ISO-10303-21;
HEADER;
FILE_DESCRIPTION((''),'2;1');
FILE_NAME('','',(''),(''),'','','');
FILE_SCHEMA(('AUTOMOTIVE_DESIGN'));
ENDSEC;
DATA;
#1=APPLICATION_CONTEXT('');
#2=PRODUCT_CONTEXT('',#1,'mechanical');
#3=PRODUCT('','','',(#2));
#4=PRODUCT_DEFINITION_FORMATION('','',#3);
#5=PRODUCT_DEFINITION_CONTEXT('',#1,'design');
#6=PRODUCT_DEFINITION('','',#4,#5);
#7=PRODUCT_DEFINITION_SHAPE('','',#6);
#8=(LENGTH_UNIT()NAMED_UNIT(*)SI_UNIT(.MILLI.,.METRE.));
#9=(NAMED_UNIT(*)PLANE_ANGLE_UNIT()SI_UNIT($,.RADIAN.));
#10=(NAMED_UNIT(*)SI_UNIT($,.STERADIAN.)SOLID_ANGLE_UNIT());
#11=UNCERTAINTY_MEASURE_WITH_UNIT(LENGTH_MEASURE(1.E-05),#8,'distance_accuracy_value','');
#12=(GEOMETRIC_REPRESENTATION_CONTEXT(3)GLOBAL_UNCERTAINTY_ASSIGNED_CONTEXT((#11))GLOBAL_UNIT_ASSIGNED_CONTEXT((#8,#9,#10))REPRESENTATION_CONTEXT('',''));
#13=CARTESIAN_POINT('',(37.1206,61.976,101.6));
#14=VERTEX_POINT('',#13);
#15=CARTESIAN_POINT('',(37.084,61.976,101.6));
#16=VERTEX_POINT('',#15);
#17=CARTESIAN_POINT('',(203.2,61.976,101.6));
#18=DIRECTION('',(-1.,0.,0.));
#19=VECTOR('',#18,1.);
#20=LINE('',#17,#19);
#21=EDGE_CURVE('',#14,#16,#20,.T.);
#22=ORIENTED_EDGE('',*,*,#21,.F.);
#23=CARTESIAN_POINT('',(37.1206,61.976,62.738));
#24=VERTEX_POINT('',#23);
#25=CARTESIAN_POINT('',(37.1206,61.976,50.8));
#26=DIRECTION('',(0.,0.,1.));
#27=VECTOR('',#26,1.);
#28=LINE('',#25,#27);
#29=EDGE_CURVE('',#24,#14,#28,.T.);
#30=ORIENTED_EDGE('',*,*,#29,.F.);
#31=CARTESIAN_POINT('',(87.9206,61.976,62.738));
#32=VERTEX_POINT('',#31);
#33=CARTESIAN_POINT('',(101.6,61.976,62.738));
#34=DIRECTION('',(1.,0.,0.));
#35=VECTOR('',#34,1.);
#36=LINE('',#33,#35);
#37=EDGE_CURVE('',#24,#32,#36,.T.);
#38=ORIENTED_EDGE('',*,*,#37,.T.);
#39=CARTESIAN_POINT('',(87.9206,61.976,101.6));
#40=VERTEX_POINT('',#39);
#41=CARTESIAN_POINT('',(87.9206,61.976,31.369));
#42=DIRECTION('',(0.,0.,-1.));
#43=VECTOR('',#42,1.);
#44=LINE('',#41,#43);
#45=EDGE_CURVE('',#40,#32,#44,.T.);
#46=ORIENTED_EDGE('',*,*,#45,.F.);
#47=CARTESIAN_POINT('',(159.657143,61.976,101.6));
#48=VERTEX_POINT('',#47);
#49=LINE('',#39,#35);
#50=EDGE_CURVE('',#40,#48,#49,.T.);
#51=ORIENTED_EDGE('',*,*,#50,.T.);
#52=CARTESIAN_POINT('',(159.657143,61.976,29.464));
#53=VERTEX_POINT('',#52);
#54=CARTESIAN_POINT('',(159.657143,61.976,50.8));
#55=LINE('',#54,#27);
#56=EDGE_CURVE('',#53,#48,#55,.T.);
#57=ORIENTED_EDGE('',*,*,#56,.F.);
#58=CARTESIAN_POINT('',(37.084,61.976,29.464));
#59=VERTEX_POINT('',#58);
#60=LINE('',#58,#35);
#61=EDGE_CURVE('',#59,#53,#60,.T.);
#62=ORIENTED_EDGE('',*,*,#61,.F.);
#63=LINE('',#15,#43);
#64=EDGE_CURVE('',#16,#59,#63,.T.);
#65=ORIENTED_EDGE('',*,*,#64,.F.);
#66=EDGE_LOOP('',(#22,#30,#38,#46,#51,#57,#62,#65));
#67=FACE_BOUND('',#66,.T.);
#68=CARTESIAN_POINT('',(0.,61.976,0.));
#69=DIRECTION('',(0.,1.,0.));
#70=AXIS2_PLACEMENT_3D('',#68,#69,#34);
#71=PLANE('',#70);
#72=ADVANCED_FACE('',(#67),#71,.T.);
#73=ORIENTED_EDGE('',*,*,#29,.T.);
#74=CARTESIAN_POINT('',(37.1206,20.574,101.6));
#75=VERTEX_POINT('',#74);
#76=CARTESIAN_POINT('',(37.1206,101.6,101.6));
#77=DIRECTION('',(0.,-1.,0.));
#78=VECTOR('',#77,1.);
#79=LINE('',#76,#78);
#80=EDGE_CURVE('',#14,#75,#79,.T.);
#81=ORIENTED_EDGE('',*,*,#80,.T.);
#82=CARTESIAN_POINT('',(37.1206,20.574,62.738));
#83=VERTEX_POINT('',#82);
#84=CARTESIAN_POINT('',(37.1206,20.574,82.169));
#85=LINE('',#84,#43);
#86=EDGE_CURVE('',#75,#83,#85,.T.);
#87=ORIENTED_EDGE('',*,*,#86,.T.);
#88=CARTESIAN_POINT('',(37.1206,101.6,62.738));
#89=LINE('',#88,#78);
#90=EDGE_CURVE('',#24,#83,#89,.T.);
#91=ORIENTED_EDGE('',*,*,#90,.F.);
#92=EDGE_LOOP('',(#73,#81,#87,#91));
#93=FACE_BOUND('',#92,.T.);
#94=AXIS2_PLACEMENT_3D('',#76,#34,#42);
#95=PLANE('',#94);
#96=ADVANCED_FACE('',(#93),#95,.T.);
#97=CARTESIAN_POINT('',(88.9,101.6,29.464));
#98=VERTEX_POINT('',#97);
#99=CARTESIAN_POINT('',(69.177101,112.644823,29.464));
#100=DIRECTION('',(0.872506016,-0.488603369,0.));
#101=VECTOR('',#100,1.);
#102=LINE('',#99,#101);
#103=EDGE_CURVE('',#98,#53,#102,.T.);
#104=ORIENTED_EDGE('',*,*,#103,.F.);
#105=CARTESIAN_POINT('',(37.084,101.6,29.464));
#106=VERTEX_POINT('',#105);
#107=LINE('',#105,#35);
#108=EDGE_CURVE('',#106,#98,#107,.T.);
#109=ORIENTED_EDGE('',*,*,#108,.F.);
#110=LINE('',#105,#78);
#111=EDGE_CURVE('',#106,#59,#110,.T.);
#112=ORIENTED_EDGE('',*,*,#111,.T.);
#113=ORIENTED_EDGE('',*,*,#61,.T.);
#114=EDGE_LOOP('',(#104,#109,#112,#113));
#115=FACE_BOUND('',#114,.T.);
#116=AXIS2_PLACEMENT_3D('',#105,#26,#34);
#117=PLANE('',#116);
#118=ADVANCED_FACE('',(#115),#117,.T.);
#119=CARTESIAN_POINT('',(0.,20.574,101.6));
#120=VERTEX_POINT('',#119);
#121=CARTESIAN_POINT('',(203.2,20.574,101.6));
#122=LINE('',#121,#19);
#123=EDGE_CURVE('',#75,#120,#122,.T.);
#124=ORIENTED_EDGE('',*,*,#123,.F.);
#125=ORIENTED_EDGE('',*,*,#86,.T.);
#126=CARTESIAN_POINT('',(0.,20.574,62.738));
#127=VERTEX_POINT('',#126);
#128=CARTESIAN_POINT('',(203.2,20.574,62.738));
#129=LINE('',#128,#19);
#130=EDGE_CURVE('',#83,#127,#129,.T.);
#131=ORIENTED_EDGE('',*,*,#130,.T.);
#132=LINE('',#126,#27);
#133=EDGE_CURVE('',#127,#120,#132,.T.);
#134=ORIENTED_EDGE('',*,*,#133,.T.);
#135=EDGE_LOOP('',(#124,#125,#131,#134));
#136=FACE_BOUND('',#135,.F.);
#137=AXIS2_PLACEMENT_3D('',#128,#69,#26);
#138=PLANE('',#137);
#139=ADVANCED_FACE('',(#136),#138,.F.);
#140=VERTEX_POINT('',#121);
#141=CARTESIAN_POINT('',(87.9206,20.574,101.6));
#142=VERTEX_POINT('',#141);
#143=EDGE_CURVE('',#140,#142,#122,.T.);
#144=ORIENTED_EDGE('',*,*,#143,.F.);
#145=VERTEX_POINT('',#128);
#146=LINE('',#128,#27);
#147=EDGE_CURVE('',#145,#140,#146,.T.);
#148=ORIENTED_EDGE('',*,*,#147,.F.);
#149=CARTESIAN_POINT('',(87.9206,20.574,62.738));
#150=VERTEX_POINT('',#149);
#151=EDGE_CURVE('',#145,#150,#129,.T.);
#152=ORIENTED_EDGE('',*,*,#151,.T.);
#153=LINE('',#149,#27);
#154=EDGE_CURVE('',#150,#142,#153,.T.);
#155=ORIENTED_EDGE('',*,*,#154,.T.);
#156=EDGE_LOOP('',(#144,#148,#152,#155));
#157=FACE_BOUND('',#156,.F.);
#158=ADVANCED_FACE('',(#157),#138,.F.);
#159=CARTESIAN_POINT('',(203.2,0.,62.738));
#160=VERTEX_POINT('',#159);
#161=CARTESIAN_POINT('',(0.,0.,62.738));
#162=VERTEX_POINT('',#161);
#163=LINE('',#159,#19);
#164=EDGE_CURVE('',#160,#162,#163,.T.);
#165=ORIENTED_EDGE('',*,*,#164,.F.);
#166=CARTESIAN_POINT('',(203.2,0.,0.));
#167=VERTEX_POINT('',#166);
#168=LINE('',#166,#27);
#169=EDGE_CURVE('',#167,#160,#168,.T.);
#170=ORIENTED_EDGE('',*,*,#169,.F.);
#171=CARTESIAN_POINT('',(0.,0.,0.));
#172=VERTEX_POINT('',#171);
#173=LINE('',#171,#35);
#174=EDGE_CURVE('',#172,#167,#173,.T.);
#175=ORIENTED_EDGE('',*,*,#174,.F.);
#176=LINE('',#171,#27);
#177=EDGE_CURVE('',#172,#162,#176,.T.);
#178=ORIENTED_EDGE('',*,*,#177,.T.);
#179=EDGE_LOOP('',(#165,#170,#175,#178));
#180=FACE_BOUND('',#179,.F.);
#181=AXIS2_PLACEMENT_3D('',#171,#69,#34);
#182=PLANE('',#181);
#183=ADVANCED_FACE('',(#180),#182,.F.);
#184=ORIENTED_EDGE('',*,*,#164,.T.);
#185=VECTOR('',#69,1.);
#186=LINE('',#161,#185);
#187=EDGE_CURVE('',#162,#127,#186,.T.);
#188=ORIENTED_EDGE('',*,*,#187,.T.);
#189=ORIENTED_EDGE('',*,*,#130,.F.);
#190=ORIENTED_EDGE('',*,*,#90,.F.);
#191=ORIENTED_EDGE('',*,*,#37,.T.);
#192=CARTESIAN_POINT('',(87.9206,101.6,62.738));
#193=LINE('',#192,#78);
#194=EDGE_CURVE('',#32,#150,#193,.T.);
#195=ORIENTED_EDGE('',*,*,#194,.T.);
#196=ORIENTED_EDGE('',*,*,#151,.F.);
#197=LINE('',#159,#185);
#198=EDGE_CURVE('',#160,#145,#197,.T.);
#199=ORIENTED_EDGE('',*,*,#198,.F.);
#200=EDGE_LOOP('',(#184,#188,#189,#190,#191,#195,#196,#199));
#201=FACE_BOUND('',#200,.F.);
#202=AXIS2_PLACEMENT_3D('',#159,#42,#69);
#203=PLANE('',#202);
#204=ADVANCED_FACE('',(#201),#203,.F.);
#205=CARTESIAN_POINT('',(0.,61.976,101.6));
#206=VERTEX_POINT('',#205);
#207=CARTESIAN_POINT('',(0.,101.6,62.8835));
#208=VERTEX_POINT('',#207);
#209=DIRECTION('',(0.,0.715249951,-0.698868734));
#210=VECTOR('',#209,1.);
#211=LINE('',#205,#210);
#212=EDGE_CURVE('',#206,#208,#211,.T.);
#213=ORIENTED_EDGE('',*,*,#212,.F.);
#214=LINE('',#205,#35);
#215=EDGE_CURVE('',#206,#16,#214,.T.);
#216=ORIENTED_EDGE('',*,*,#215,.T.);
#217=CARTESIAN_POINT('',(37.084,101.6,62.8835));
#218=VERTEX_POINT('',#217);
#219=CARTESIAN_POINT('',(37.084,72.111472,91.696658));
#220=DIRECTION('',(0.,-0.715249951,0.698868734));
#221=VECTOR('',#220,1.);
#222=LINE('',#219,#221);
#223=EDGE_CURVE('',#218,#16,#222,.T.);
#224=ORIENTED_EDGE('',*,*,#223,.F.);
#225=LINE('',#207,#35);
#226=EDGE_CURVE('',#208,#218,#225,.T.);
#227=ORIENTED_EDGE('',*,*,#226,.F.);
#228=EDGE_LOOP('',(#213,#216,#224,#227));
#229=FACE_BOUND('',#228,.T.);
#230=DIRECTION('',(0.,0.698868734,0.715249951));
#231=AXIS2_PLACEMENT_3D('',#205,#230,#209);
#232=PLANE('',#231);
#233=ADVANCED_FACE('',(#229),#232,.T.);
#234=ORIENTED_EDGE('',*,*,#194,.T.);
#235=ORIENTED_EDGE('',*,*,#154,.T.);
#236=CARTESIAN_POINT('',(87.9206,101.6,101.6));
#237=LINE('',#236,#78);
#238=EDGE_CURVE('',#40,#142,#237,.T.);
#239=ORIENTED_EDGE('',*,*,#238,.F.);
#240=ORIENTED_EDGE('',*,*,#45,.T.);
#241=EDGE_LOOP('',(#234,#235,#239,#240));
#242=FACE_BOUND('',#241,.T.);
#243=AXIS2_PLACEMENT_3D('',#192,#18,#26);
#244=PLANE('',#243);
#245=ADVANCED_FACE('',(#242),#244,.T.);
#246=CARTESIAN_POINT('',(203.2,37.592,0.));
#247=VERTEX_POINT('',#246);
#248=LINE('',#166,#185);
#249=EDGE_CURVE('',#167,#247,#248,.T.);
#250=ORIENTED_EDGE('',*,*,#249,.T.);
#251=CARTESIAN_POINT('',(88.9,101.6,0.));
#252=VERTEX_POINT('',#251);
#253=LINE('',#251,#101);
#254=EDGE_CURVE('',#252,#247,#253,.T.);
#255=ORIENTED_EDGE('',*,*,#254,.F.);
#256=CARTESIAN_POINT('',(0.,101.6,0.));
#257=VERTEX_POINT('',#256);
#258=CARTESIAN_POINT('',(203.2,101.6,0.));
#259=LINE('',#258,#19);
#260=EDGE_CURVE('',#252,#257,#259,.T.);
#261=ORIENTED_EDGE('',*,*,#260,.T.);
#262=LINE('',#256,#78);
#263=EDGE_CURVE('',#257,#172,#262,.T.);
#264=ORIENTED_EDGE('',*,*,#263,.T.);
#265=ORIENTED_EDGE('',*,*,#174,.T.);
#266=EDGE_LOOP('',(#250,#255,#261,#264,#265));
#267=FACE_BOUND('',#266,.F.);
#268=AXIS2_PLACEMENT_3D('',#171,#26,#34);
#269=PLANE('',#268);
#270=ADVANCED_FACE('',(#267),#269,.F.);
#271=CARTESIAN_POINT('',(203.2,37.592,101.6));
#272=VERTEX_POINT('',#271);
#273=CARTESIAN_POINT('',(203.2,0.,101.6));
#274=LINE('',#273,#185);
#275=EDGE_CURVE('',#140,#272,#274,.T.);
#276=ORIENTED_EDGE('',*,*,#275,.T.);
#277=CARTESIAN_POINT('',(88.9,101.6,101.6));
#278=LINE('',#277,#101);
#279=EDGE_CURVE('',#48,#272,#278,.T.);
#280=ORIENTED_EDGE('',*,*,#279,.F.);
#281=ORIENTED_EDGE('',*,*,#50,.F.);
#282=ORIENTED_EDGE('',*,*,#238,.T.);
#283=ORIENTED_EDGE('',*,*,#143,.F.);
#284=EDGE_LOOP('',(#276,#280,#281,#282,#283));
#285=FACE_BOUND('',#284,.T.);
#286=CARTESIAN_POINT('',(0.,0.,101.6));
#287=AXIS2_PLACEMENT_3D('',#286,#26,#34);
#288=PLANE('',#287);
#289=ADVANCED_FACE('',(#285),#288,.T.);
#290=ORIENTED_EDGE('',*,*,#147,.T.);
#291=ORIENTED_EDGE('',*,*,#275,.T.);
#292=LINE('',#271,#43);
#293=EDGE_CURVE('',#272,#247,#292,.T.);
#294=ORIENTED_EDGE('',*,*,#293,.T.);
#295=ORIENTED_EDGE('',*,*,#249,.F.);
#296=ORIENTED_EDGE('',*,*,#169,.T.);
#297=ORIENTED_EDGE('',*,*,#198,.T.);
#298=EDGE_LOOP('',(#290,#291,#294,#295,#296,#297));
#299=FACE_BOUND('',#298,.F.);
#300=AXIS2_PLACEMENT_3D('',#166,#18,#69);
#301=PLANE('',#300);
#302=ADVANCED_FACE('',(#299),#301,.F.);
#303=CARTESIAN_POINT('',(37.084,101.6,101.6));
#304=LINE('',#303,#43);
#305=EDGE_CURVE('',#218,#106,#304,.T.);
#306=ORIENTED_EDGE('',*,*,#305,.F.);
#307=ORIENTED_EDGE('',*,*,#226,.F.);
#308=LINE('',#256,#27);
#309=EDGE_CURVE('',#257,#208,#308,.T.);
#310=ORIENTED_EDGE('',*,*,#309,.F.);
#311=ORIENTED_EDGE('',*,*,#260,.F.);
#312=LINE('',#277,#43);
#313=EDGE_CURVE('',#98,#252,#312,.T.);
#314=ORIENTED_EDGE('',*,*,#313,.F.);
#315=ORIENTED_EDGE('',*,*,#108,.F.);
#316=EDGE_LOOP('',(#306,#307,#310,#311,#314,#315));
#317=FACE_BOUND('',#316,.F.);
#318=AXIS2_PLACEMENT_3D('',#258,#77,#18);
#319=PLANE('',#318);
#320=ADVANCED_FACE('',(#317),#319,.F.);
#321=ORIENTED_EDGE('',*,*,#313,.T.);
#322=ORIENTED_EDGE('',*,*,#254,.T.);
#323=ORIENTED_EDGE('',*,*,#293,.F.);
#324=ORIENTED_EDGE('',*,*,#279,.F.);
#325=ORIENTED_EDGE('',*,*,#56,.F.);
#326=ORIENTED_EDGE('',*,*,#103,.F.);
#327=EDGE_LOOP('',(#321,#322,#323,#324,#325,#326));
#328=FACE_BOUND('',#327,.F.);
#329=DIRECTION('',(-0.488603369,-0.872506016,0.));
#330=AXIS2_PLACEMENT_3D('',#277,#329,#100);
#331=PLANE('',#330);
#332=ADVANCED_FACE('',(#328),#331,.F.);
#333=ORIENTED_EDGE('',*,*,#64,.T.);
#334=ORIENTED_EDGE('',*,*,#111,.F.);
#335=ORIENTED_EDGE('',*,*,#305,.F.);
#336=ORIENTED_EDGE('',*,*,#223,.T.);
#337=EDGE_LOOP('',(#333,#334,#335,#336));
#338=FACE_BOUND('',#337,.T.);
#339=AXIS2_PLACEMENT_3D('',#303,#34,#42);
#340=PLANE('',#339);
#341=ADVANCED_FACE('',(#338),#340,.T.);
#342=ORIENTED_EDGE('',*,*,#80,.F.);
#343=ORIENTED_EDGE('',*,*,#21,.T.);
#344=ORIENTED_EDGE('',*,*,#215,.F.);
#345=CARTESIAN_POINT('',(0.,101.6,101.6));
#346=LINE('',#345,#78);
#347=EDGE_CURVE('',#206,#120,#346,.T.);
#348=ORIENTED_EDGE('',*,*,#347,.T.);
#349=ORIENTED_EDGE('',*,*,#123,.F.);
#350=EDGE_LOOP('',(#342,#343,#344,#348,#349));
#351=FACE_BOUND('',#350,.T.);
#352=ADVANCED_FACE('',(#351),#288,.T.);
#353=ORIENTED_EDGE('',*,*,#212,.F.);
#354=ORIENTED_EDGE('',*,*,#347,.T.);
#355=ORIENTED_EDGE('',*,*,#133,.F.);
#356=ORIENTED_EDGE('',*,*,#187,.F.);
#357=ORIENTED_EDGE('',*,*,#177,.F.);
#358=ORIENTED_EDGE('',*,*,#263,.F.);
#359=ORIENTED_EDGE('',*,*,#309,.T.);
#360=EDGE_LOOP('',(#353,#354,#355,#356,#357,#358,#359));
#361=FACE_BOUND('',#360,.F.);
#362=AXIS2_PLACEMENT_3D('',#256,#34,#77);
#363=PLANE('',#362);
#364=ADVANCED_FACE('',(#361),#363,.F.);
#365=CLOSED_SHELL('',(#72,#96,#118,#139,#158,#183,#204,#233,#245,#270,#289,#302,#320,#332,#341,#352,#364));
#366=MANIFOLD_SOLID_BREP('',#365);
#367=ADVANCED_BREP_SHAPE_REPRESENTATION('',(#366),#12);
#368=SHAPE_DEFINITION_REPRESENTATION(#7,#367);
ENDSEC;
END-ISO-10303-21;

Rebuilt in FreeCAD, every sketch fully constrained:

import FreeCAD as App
import Part
import Sketcher
from FreeCAD import Vector
Q = App.Units.Quantity

doc = App.newDocument("Part")
body = doc.addObject("PartDesign::Body", "Body")

# Sketch on XY plane
sketch1 = doc.addObject("Sketcher::SketchObject", "Sketch")
body.addObject(sketch1)
sketch1.AttachmentSupport = (doc.XY_Plane, [""])
sketch1.MapMode = "FlatFace"
sketch1.addGeometry(Part.LineSegment(Vector(0, 102, 0), Vector(0, 0, 0)), False)
sketch1.addGeometry(Part.LineSegment(Vector(0, 0, 0), Vector(203, 0, 0)), False)
sketch1.addGeometry(Part.LineSegment(Vector(203, 0, 0), Vector(203, 102, 0)), False)
sketch1.addGeometry(Part.LineSegment(Vector(203, 102, 0), Vector(0, 102, 0)), False)
sketch1.addConstraint(Sketcher.Constraint("Coincident", 0, 2, 1, 1))
sketch1.addConstraint(Sketcher.Constraint("Coincident", 1, 2, 2, 1))
sketch1.addConstraint(Sketcher.Constraint("Coincident", 2, 2, 3, 1))
sketch1.addConstraint(Sketcher.Constraint("Coincident", 3, 2, 0, 1))
sketch1.addConstraint(Sketcher.Constraint("Vertical", 0))
sketch1.addConstraint(Sketcher.Constraint("Horizontal", 1))
sketch1.addConstraint(Sketcher.Constraint("Vertical", 2))
sketch1.addConstraint(Sketcher.Constraint("Horizontal", 3))
sketch1.addConstraint(Sketcher.Constraint("Coincident", 0, 2, -1, 1))
sketch1.addConstraint(Sketcher.Constraint("DistanceX", 1, 1, 1, 2, Q("8 in")))
sketch1.addConstraint(Sketcher.Constraint("DistanceY", 0, 2, 0, 1, Q("4 in")))
pad1 = doc.addObject("PartDesign::Pad", "Pad")
body.addObject(pad1)
pad1.Profile = sketch1
pad1.Length = Q("4 in")

# Sketch on YZ plane
sketch2 = doc.addObject("Sketcher::SketchObject", "Sketch001")
body.addObject(sketch2)
sketch2.AttachmentSupport = (doc.YZ_Plane, [""])
sketch2.MapMode = "FlatFace"
sketch2.AttachmentOffset = App.Placement(Vector(0, 0, 8 * 25.4), App.Rotation())
sketch2.addGeometry(Part.LineSegment(Vector(0, 102, 0), Vector(0, 63, 0)), False)
sketch2.addGeometry(Part.LineSegment(Vector(0, 63, 0), Vector(21, 63, 0)), False)
sketch2.addGeometry(Part.LineSegment(Vector(21, 63, 0), Vector(21, 102, 0)), False)
sketch2.addGeometry(Part.LineSegment(Vector(21, 102, 0), Vector(0, 102, 0)), False)
sketch2.addConstraint(Sketcher.Constraint("Coincident", 0, 2, 1, 1))
sketch2.addConstraint(Sketcher.Constraint("Coincident", 1, 2, 2, 1))
sketch2.addConstraint(Sketcher.Constraint("Coincident", 2, 2, 3, 1))
sketch2.addConstraint(Sketcher.Constraint("Coincident", 3, 2, 0, 1))
sketch2.addConstraint(Sketcher.Constraint("Vertical", 0))
sketch2.addConstraint(Sketcher.Constraint("Horizontal", 1))
sketch2.addConstraint(Sketcher.Constraint("Vertical", 2))
sketch2.addConstraint(Sketcher.Constraint("Horizontal", 3))
sketch2.addConstraint(Sketcher.Constraint("PointOnObject", 0, 2, -2))
sketch2.addConstraint(Sketcher.Constraint("DistanceX", 1, 1, 1, 2, Q("0.81 in")))
sketch2.addConstraint(Sketcher.Constraint("DistanceY", 0, 2, 0, 1, Q("1.53 in")))
sketch2.addConstraint(Sketcher.Constraint("DistanceY", -1, 1, 2, 2, Q("4 in")))
pocket1 = doc.addObject("PartDesign::Pocket", "Pocket")
body.addObject(pocket1)
pocket1.Profile = sketch2
pocket1.Length = Q("8 in")

# Sketch on XZ plane
sketch3 = doc.addObject("Sketcher::SketchObject", "Sketch002")
body.addObject(sketch3)
sketch3.AttachmentSupport = (doc.XZ_Plane, [""])
sketch3.MapMode = "FlatFace"
sketch3.AttachmentOffset = App.Placement(Vector(0, 0, -4 * 25.4), App.Rotation())
sketch3.addGeometry(Part.LineSegment(Vector(37, 102, 0), Vector(88, 102, 0)), False)
sketch3.addGeometry(Part.LineSegment(Vector(88, 102, 0), Vector(88, 63, 0)), False)
sketch3.addGeometry(Part.LineSegment(Vector(88, 63, 0), Vector(37, 63, 0)), False)
sketch3.addGeometry(Part.LineSegment(Vector(37, 63, 0), Vector(37, 102, 0)), False)
sketch3.addConstraint(Sketcher.Constraint("Coincident", 0, 2, 1, 1))
sketch3.addConstraint(Sketcher.Constraint("Coincident", 1, 2, 2, 1))
sketch3.addConstraint(Sketcher.Constraint("Coincident", 2, 2, 3, 1))
sketch3.addConstraint(Sketcher.Constraint("Coincident", 3, 2, 0, 1))
sketch3.addConstraint(Sketcher.Constraint("Horizontal", 0))
sketch3.addConstraint(Sketcher.Constraint("Vertical", 1))
sketch3.addConstraint(Sketcher.Constraint("Horizontal", 2))
sketch3.addConstraint(Sketcher.Constraint("Vertical", 3))
sketch3.addConstraint(Sketcher.Constraint("DistanceX", 0, 1, 0, 2, Q("2 in")))
sketch3.addConstraint(Sketcher.Constraint("DistanceY", 1, 2, 1, 1, Q("1.53 in")))
sketch3.addConstraint(Sketcher.Constraint("DistanceY", -1, 1, 0, 2, Q("4 in")))
sketch3.addConstraint(Sketcher.Constraint("DistanceX", -1, 1, 0, 2, Q("87.9206 mm")))
pocket2 = doc.addObject("PartDesign::Pocket", "Pocket001")
body.addObject(pocket2)
pocket2.Profile = sketch3
pocket2.Length = Q("8 in")
pocket2.Reversed = True

# Sketch on XZ plane
sketch4 = doc.addObject("Sketcher::SketchObject", "Sketch003")
body.addObject(sketch4)
sketch4.AttachmentSupport = (doc.XZ_Plane, [""])
sketch4.MapMode = "FlatFace"
sketch4.AttachmentOffset = App.Placement(Vector(0, 0, -4 * 25.4), App.Rotation())
sketch4.addGeometry(Part.LineSegment(Vector(37, 102, 0), Vector(160, 102, 0)), False)
sketch4.addGeometry(Part.LineSegment(Vector(160, 102, 0), Vector(160, 29, 0)), False)
sketch4.addGeometry(Part.LineSegment(Vector(160, 29, 0), Vector(37, 29, 0)), False)
sketch4.addGeometry(Part.LineSegment(Vector(37, 29, 0), Vector(37, 102, 0)), False)
sketch4.addConstraint(Sketcher.Constraint("Coincident", 0, 2, 1, 1))
sketch4.addConstraint(Sketcher.Constraint("Coincident", 1, 2, 2, 1))
sketch4.addConstraint(Sketcher.Constraint("Coincident", 2, 2, 3, 1))
sketch4.addConstraint(Sketcher.Constraint("Coincident", 3, 2, 0, 1))
sketch4.addConstraint(Sketcher.Constraint("Horizontal", 0))
sketch4.addConstraint(Sketcher.Constraint("Vertical", 1))
sketch4.addConstraint(Sketcher.Constraint("Horizontal", 2))
sketch4.addConstraint(Sketcher.Constraint("Vertical", 3))
sketch4.addConstraint(Sketcher.Constraint("DistanceX", 0, 1, 0, 2, Q("4.83 in")))
sketch4.addConstraint(Sketcher.Constraint("DistanceY", 1, 2, 1, 1, Q("2.84 in")))
sketch4.addConstraint(Sketcher.Constraint("DistanceX", -1, 1, 2, 2, Q("1.46 in")))
sketch4.addConstraint(Sketcher.Constraint("DistanceY", -1, 1, 0, 2, Q("4 in")))
pocket3 = doc.addObject("PartDesign::Pocket", "Pocket002")
body.addObject(pocket3)
pocket3.Profile = sketch4
pocket3.Length = Q("1.56 in")
pocket3.Reversed = True

# Sketch on XY plane
sketch5 = doc.addObject("Sketcher::SketchObject", "Sketch004")
body.addObject(sketch5)
sketch5.AttachmentSupport = (doc.XY_Plane, [""])
sketch5.MapMode = "FlatFace"
sketch5.AttachmentOffset = App.Placement(Vector(0, 0, 4 * 25.4), App.Rotation())
sketch5.addGeometry(Part.LineSegment(Vector(89, 102, 0), Vector(203, 38, 0)), False)
sketch5.addGeometry(Part.LineSegment(Vector(203, 38, 0), Vector(203, 102, 0)), False)
sketch5.addGeometry(Part.LineSegment(Vector(203, 102, 0), Vector(89, 102, 0)), False)
sketch5.addConstraint(Sketcher.Constraint("Coincident", 0, 2, 1, 1))
sketch5.addConstraint(Sketcher.Constraint("Coincident", 1, 2, 2, 1))
sketch5.addConstraint(Sketcher.Constraint("Coincident", 2, 2, 0, 1))
sketch5.addConstraint(Sketcher.Constraint("Vertical", 1))
sketch5.addConstraint(Sketcher.Constraint("Horizontal", 2))
sketch5.addConstraint(Sketcher.Constraint("DistanceX", 2, 2, 2, 1, Q("4.5 in")))
sketch5.addConstraint(Sketcher.Constraint("DistanceY", 1, 1, 1, 2, Q("2.52 in")))
sketch5.addConstraint(Sketcher.Constraint("DistanceX", -1, 1, 0, 2, Q("8 in")))
sketch5.addConstraint(Sketcher.Constraint("DistanceY", -1, 1, 1, 2, Q("4 in")))
pocket4 = doc.addObject("PartDesign::Pocket", "Pocket003")
body.addObject(pocket4)
pocket4.Profile = sketch5
pocket4.Length = Q("4 in")

# Sketch on YZ plane
sketch6 = doc.addObject("Sketcher::SketchObject", "Sketch005")
body.addObject(sketch6)
sketch6.AttachmentSupport = (doc.YZ_Plane, [""])
sketch6.MapMode = "FlatFace"
sketch6.addGeometry(Part.LineSegment(Vector(62, 102, 0), Vector(102, 102, 0)), False)
sketch6.addGeometry(Part.LineSegment(Vector(102, 102, 0), Vector(102, 63, 0)), False)
sketch6.addGeometry(Part.LineSegment(Vector(102, 63, 0), Vector(62, 102, 0)), False)
sketch6.addConstraint(Sketcher.Constraint("Coincident", 0, 2, 1, 1))
sketch6.addConstraint(Sketcher.Constraint("Coincident", 1, 2, 2, 1))
sketch6.addConstraint(Sketcher.Constraint("Coincident", 2, 2, 0, 1))
sketch6.addConstraint(Sketcher.Constraint("Horizontal", 0))
sketch6.addConstraint(Sketcher.Constraint("Vertical", 1))
sketch6.addConstraint(Sketcher.Constraint("DistanceX", 0, 1, 0, 2, Q("1.56 in")))
sketch6.addConstraint(Sketcher.Constraint("DistanceX", -1, 1, 0, 2, Q("4 in")))
sketch6.addConstraint(Sketcher.Constraint("DistanceY", -1, 1, 0, 2, Q("4 in")))
sketch6.addConstraint(Sketcher.Constraint("DistanceY", 1, 2, 1, 1, Q("38.7165 mm")))
pocket5 = doc.addObject("PartDesign::Pocket", "Pocket004")
body.addObject(pocket5)
pocket5.Profile = sketch6
pocket5.Length = Q("4 in")
pocket5.Reversed = True

doc.recompute()
